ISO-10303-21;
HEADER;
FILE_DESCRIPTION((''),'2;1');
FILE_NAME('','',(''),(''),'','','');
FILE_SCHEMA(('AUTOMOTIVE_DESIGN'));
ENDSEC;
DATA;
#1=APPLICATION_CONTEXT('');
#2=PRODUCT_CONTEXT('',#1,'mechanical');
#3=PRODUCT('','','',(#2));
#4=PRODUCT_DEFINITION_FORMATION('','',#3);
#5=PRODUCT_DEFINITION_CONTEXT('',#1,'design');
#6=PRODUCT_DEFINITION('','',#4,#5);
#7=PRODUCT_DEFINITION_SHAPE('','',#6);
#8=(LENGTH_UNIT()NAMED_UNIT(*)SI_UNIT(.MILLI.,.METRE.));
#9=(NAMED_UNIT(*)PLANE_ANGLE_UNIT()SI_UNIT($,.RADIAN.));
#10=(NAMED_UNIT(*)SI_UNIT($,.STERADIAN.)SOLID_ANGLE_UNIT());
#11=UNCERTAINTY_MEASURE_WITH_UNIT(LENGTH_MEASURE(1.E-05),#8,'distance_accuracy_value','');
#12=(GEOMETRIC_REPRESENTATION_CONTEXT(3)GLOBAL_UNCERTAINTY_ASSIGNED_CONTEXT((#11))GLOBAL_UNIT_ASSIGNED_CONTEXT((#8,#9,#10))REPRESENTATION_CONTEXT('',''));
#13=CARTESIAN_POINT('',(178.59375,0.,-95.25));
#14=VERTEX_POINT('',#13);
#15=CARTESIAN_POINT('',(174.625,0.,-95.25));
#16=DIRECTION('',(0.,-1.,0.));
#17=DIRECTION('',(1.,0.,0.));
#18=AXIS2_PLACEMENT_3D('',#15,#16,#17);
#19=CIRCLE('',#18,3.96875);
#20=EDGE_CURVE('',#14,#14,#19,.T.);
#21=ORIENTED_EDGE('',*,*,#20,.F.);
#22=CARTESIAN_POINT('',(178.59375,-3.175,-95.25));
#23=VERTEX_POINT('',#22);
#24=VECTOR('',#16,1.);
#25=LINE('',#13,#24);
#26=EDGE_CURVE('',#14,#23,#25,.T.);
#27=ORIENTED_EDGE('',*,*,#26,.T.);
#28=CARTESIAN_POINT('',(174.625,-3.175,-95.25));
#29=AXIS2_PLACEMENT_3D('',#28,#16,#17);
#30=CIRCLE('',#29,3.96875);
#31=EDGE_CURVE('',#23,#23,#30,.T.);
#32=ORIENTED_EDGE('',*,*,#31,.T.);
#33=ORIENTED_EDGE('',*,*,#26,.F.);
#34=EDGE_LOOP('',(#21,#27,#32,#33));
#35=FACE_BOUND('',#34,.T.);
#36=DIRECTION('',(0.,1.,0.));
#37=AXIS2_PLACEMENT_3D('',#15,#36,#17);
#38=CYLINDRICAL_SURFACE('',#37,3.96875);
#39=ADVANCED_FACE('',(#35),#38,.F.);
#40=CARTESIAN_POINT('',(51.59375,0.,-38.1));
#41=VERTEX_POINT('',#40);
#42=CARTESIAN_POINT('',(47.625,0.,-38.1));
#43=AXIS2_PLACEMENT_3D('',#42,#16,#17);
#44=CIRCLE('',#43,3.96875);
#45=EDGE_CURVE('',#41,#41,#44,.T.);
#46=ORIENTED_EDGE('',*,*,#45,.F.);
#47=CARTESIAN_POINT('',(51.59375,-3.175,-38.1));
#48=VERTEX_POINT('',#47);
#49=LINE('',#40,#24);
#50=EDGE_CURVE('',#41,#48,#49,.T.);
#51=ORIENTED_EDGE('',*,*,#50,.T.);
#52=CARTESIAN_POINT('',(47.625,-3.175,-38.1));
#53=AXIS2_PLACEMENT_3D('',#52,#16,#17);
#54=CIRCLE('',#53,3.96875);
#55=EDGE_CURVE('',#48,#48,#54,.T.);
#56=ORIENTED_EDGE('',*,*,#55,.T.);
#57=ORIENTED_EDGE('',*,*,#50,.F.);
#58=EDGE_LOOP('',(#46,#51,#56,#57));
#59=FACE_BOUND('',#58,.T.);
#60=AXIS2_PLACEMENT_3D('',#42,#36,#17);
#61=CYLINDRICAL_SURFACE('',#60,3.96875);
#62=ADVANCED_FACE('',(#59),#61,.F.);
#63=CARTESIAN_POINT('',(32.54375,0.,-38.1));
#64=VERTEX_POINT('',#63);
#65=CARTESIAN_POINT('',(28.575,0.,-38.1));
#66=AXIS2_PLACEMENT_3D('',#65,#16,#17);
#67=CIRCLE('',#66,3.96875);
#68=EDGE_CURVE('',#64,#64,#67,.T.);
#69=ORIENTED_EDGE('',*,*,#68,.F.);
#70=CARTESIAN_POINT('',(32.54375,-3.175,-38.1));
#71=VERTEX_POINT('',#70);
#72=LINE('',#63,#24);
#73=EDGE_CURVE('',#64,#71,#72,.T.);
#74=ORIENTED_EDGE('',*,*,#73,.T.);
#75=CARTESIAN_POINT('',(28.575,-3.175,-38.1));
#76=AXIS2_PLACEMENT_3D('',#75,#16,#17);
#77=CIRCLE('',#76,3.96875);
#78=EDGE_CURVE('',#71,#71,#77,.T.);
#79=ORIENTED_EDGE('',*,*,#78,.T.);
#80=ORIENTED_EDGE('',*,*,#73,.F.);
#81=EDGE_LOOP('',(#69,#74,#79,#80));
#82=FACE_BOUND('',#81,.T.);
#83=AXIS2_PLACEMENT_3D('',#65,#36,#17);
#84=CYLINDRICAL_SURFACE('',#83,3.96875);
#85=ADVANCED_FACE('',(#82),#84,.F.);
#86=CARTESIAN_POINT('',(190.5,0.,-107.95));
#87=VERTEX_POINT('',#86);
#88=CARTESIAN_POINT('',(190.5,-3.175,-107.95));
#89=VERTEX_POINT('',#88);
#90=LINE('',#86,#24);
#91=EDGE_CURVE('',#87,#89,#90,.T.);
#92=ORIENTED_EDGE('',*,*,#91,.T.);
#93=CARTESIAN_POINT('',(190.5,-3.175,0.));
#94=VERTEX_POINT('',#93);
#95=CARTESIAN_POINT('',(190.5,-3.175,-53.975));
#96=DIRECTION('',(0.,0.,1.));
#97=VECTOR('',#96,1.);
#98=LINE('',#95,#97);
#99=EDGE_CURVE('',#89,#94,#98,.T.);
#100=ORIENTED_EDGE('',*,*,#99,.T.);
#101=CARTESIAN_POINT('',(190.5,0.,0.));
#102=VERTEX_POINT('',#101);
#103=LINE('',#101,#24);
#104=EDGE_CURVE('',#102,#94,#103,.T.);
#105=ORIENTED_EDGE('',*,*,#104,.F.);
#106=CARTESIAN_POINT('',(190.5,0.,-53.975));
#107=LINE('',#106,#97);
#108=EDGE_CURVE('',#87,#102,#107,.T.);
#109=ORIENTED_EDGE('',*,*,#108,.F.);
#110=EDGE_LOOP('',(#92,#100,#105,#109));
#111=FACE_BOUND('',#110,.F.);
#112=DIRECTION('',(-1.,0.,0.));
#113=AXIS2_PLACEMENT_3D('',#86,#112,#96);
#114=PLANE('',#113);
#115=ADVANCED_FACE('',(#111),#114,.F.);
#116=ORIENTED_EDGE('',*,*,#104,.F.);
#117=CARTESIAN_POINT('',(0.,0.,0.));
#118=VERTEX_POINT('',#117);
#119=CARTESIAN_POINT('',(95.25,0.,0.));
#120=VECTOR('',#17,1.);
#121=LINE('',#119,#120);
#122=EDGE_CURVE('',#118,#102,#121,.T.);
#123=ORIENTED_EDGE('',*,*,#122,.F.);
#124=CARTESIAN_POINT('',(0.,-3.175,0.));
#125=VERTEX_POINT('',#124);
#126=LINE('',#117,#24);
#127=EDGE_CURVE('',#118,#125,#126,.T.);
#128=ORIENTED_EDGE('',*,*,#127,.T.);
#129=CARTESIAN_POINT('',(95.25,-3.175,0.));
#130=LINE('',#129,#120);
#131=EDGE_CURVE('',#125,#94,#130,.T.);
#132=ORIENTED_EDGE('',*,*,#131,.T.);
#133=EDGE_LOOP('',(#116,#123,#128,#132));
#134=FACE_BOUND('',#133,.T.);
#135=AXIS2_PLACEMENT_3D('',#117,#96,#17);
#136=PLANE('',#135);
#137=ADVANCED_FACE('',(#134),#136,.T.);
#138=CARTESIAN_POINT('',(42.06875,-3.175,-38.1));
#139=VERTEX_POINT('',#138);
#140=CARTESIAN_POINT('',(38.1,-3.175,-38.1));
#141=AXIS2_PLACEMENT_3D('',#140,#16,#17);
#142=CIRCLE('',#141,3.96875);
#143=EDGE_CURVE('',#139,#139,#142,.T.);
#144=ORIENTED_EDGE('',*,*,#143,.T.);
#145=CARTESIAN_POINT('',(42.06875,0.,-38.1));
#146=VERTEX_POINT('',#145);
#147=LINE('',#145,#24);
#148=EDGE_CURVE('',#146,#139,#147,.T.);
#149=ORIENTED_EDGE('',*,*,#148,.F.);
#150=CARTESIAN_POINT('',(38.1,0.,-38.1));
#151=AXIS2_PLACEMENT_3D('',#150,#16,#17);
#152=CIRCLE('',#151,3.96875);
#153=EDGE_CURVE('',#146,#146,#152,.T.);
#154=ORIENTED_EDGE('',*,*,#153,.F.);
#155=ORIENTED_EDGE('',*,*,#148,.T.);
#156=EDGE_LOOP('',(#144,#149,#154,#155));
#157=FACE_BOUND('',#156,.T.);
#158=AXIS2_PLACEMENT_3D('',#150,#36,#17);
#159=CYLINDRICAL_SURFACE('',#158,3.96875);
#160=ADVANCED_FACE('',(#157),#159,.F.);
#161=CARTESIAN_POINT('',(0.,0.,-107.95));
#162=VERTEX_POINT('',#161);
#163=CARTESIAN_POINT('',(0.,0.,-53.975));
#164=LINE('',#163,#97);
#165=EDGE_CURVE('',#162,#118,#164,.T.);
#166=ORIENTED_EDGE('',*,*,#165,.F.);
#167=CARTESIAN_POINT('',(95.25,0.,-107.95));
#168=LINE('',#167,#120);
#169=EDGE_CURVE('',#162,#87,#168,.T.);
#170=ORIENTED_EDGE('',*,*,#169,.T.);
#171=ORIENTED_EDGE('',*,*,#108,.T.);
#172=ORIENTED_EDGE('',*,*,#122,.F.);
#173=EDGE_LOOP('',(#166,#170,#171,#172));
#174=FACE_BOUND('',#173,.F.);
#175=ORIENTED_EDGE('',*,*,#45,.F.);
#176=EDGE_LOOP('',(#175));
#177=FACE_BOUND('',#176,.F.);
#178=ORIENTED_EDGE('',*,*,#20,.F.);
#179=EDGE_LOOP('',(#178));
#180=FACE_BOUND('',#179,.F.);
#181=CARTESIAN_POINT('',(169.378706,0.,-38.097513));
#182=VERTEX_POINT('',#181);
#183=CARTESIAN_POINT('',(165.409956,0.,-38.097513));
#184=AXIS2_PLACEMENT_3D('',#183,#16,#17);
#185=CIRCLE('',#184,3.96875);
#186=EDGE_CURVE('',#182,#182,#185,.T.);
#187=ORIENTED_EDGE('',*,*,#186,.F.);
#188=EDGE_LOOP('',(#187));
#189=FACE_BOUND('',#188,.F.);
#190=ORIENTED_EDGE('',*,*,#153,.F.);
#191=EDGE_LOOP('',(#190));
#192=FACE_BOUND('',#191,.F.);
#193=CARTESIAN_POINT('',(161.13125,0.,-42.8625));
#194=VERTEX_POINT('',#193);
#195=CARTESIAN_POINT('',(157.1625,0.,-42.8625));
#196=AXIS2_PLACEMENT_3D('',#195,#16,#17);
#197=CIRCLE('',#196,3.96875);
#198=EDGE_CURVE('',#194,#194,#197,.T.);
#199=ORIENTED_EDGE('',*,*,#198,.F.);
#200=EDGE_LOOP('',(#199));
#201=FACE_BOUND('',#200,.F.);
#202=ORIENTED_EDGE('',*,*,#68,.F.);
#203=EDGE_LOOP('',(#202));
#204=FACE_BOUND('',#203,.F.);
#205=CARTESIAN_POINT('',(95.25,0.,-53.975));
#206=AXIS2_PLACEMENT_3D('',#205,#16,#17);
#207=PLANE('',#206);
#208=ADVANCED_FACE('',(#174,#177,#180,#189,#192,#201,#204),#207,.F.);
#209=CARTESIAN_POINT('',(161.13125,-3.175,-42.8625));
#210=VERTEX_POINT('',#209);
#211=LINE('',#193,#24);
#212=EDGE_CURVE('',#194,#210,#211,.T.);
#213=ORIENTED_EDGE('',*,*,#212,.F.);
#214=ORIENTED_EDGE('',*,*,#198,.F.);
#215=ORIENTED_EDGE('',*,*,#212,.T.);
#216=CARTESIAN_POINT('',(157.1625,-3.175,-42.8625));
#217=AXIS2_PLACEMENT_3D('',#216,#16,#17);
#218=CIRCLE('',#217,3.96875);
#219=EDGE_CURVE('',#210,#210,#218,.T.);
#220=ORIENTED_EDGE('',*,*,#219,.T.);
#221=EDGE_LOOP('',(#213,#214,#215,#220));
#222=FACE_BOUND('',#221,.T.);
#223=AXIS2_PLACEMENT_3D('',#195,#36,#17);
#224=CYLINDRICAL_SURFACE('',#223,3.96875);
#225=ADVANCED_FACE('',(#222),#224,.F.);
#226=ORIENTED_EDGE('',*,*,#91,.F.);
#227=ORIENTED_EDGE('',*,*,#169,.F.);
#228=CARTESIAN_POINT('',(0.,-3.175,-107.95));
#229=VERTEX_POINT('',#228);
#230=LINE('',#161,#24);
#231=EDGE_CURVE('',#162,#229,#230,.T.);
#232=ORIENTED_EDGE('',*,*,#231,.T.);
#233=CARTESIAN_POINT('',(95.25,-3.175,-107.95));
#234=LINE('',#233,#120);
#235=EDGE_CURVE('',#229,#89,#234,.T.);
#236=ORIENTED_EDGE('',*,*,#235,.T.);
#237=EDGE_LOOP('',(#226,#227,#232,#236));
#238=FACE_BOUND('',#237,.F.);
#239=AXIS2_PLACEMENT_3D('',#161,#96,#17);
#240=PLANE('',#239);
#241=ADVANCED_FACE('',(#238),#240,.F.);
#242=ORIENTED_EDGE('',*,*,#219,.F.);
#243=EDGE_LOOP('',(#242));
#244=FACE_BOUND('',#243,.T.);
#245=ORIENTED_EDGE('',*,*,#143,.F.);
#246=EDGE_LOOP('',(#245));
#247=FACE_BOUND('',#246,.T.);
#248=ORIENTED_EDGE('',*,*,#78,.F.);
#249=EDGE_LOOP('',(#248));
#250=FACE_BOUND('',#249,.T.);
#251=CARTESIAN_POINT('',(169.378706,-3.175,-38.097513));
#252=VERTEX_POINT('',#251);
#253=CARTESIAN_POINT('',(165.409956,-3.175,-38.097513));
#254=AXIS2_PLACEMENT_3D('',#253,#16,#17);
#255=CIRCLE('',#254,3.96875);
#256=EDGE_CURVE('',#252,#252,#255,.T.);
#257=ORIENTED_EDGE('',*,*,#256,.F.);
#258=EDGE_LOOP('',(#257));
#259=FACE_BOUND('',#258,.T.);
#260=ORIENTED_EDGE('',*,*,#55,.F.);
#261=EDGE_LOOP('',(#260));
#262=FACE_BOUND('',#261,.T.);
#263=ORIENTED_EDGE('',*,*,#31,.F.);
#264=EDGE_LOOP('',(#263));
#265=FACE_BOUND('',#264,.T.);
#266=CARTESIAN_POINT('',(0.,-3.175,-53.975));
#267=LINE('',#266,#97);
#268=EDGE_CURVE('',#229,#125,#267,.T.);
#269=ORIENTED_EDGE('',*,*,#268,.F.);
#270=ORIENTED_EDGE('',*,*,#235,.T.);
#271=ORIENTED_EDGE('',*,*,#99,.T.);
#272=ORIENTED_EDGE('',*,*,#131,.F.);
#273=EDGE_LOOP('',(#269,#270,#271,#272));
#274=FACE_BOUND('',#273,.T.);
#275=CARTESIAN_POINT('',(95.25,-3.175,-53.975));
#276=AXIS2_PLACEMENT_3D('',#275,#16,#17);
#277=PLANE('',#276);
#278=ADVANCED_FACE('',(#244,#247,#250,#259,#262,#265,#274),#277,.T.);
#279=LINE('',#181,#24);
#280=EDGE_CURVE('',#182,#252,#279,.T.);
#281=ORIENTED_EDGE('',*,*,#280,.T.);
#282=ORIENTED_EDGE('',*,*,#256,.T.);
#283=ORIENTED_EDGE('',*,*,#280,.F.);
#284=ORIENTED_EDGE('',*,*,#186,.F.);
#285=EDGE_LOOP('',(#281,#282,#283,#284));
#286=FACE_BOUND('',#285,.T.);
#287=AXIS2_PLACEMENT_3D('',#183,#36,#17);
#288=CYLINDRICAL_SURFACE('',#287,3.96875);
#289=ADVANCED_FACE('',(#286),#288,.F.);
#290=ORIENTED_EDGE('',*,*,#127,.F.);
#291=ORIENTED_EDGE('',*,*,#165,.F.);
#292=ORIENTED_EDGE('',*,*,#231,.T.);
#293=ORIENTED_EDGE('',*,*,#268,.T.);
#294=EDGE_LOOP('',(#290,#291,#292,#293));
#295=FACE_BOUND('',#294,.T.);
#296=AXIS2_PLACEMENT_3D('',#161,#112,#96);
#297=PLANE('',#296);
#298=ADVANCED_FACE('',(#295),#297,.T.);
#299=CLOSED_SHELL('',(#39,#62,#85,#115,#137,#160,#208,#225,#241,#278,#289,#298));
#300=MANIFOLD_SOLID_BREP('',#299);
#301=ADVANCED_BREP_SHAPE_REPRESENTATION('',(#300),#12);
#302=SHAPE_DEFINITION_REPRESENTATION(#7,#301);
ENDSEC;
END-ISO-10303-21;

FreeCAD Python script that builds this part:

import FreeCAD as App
import Part
import Sketcher

V = App.Vector
Q = App.Units.Quantity

doc = App.newDocument("Part")
body = doc.addObject("PartDesign::Body", "Body")

# Sketch on XZ plane
sketch1 = body.newObject("Sketcher::SketchObject", "Sketch")
sketch1.AttachmentSupport = (doc.getObject("XZ_Plane"), [""])
sketch1.MapMode = "FlatFace"
sketch1.addGeometry([
    Part.LineSegment(V(0, 0, 0), V(0, -108, 0)),  # 0
    Part.LineSegment(V(0, -108, 0), V(190.5, -108, 0)),  # 1
    Part.LineSegment(V(190.5, -108, 0), V(190.5, 0, 0)),  # 2
    Part.LineSegment(V(190.5, 0, 0), V(0, 0, 0)),  # 3
    Part.Circle(V(174.6, -95.2, 0), V(0, 0, 1), 4),  # 4
    Part.Circle(V(28.6, -38.1, 0), V(0, 0, 1), 4),  # 5
    Part.Circle(V(38.1, -38.1, 0), V(0, 0, 1), 4),  # 6
    Part.Circle(V(47.6, -38.1, 0), V(0, 0, 1), 4),  # 7
    Part.Circle(V(157.2, -42.9, 0), V(0, 0, 1), 4),  # 8
    Part.Circle(V(165.4, -38.1, 0), V(0, 0, 1), 4),  # 9
], False)
sketch1.addConstraint([
    Sketcher.Constraint("Coincident", 0, 2, 1, 1),
    Sketcher.Constraint("Coincident", 1, 2, 2, 1),
    Sketcher.Constraint("Coincident", 2, 2, 3, 1),
    Sketcher.Constraint("Coincident", 3, 2, 0, 1),
    Sketcher.Constraint("Vertical", 0),
    Sketcher.Constraint("Horizontal", 1),
    Sketcher.Constraint("Vertical", 2),
    Sketcher.Constraint("Horizontal", 3),
    Sketcher.Constraint("Coincident", 3, 2, -1, 1),
    Sketcher.Constraint("Equal", 4, 5),
    Sketcher.Constraint("Equal", 5, 6),
    Sketcher.Constraint("Equal", 6, 7),
    Sketcher.Constraint("Equal", 7, 8),
    Sketcher.Constraint("Equal", 8, 9),
    Sketcher.Constraint("Horizontal", 5, 3, 6, 3),
    Sketcher.Constraint("Horizontal", 6, 3, 7, 3),
    Sketcher.Constraint("Diameter", 4, Q("0.3125 in")),
    Sketcher.Constraint("DistanceX", 1, 1, 1, 2, Q("7.5 in")),
    Sketcher.Constraint("DistanceX", 7, 3, 4, 3, Q("5 in")),
    Sketcher.Constraint("DistanceX", 6, 3, 1, 2, Q("6 in")),
    Sketcher.Constraint("DistanceY", 0, 2, 0, 1, Q("4.25 in")),
    Sketcher.Constraint("DistanceY", 5, 3, -1, 1, Q("1.5 in")),
    Sketcher.Constraint("DistanceY", 0, 2, 4, 3, Q("0.5 in")),
    Sketcher.Constraint("DistanceX", 5, 3, 4, 3, Q("5.75 in")),
    Sketcher.Constraint("DistanceX", -1, 1, 4, 3, Q("6.875 in")),
    Sketcher.Constraint("DistanceX", -1, 1, 8, 3, Q("6.1875 in")),
    Sketcher.Constraint("DistanceY", 8, 3, -1, 1, Q("1.6875 in")),
    Sketcher.Constraint("DistanceX", -1, 1, 9, 3, 165.409956),
    Sketcher.Constraint("DistanceY", 9, 3, -1, 1, 38.097513),
])
pad1 = body.newObject("PartDesign::Pad", "Pad")
pad1.Profile = sketch1
pad1.Length = Q("0.125 in")

doc.recompute()
